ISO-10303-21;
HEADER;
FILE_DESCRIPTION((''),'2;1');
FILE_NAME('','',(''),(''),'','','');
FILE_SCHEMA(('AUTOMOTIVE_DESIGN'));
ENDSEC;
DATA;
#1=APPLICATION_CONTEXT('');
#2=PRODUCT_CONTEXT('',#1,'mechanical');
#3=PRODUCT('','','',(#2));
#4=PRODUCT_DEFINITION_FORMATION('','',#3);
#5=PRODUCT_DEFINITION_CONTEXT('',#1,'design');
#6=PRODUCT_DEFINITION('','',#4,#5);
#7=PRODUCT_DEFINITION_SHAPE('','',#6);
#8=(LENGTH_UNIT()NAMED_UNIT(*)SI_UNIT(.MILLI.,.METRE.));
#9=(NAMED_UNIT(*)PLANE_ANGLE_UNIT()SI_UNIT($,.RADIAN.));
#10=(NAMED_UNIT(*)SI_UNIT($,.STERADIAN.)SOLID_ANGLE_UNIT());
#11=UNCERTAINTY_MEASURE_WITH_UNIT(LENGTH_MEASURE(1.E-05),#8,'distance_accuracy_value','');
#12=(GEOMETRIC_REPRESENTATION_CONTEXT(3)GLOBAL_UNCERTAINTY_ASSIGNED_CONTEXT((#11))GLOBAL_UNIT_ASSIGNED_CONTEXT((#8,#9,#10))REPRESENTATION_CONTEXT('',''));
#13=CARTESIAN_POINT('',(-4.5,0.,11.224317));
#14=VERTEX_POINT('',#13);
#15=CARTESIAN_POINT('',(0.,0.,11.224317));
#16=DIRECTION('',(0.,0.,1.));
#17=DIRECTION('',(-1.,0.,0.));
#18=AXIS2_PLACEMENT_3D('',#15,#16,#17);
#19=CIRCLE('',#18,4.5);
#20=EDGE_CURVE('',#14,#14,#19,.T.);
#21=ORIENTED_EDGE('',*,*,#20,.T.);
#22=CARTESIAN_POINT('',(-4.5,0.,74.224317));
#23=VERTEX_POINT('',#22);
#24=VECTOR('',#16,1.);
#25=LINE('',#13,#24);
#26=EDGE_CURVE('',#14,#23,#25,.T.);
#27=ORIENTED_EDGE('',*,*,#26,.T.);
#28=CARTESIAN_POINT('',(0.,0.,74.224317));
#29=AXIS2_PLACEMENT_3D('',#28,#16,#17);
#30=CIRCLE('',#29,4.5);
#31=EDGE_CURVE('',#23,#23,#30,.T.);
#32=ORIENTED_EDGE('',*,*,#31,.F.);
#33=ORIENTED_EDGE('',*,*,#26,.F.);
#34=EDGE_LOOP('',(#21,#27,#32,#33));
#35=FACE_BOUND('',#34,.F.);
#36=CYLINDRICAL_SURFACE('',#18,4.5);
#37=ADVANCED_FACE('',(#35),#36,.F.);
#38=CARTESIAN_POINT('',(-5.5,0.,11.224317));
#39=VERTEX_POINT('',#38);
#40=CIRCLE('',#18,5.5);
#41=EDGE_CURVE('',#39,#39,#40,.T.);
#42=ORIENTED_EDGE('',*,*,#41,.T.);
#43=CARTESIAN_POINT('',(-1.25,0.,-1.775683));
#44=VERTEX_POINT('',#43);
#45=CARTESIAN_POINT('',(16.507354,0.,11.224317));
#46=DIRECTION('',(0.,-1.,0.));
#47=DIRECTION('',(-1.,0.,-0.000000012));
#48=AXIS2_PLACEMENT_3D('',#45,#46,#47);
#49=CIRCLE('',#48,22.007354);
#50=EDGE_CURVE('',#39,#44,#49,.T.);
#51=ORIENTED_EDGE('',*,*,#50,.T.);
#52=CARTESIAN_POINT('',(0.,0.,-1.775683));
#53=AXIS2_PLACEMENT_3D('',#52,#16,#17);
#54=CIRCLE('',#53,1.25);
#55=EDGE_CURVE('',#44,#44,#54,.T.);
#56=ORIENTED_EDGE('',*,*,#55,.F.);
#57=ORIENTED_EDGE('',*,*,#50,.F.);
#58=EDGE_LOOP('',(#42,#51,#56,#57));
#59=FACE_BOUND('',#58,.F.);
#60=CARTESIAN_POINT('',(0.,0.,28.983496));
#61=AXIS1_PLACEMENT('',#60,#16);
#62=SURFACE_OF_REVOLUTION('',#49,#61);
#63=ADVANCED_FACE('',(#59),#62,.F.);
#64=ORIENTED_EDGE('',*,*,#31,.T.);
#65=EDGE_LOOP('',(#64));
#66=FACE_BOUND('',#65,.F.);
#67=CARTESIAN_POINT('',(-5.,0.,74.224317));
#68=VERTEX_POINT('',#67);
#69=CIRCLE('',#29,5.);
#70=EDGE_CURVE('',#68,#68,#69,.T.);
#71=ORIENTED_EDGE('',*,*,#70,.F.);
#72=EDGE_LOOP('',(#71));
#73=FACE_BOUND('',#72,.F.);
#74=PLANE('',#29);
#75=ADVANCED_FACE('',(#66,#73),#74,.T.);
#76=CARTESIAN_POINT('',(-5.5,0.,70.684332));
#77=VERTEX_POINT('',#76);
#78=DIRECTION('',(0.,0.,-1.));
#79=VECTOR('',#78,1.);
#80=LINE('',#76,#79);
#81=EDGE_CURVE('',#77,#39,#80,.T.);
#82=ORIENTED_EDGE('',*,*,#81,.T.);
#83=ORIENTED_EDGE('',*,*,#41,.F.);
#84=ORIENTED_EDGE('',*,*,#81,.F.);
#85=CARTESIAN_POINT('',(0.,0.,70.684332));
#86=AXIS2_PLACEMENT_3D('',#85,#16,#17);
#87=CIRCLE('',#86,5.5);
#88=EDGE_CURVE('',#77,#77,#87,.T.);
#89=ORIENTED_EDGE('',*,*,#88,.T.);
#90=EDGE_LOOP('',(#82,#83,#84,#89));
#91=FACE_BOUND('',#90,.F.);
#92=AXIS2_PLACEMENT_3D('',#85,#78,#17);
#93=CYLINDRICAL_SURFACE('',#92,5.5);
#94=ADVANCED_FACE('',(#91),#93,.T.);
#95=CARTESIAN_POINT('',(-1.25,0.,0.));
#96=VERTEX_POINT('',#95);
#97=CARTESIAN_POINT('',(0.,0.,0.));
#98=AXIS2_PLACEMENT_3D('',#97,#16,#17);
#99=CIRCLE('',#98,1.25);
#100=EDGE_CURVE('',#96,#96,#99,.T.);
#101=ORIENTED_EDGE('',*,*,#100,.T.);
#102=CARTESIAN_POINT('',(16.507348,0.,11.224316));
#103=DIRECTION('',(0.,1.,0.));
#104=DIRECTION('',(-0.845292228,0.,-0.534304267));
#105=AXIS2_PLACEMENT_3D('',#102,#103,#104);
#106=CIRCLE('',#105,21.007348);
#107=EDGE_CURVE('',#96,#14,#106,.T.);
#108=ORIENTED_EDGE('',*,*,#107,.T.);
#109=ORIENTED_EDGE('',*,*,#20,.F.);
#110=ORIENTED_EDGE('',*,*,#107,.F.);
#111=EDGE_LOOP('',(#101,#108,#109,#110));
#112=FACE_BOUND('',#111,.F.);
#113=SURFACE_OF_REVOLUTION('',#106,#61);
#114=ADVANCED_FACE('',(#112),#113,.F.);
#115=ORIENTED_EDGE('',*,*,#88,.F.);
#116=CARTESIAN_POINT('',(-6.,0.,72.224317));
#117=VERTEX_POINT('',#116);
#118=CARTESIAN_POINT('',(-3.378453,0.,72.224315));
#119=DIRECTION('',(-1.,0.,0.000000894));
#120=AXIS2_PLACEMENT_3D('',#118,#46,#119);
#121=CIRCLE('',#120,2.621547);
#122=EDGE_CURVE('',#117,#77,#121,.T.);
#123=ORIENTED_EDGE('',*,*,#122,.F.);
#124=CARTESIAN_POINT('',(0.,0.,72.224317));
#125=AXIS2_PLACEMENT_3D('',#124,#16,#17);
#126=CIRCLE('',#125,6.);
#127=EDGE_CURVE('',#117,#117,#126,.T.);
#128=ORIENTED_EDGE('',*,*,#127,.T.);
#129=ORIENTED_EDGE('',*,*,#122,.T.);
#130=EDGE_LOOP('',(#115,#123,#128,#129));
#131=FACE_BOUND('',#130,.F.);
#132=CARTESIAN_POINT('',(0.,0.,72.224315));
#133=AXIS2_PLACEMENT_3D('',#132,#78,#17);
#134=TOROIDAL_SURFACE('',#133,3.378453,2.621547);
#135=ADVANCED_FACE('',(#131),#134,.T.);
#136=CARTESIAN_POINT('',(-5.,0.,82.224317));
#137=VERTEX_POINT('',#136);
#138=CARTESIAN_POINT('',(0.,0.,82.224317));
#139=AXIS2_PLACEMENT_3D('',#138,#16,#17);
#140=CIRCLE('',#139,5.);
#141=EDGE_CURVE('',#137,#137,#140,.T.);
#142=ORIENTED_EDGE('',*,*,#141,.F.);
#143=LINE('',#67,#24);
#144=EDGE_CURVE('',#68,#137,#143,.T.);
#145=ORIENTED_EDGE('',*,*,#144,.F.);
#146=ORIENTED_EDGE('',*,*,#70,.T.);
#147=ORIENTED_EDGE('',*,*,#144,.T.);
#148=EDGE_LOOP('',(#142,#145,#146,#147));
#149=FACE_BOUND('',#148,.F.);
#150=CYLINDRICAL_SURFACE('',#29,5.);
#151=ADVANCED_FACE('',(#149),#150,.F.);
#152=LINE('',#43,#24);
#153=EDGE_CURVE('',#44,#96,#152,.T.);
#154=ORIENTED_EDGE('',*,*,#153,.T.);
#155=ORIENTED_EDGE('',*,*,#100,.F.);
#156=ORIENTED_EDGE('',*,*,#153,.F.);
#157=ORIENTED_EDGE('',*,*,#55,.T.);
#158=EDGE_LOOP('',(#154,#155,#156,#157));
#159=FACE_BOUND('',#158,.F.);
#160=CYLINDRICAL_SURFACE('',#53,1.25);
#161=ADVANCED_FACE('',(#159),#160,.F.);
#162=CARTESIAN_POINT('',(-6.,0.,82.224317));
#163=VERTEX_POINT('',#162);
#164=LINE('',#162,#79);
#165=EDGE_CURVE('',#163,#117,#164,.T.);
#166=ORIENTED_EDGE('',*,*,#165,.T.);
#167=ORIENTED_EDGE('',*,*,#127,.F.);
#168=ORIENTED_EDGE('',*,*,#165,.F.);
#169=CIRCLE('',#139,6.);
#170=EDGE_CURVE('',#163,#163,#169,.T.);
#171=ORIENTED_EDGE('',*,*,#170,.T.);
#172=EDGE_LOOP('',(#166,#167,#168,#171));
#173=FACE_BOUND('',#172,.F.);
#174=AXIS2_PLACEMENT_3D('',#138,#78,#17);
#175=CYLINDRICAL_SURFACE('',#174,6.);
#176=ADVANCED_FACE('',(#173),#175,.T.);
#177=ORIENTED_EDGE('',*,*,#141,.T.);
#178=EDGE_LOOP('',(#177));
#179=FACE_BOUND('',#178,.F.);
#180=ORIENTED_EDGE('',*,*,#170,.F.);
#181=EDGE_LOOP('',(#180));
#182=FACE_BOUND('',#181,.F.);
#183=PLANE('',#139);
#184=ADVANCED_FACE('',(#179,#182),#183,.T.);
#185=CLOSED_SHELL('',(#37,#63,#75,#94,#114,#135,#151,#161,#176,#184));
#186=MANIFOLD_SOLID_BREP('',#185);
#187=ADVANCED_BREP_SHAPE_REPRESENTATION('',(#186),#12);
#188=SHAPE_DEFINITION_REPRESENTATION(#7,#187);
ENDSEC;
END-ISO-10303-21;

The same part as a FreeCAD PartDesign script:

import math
import FreeCAD as App
import Part
import Sketcher

doc = App.newDocument("Part")
params = doc.addObject("Spreadsheet::Sheet", "Params")
for row, (alias, value) in enumerate([
    ("sketch1_width", "1 mm"),
    ("sketch1_height", "63 mm"),
    ("sketch1_height2", "8 mm"),
    ("sketch1_height3", "10 mm"),
    ("sketch1_width2", "0.5 mm"),
    ("revolution_angle", "360 deg"),
], start=1):
    params.set(f"A{row}", alias)
    params.set(f"B{row}", "=" + value)
    params.setAlias(f"B{row}", alias)

body = doc.addObject("PartDesign::Body", "Body")

# Sketch on XZ plane
sketch1 = doc.addObject("Sketcher::SketchObject", "Sketch")
body.addObject(sketch1)
sketch1.AttachmentSupport = (doc.XZ_Plane, [""])
sketch1.MapMode = "FlatFace"
sketch1.addGeometry(Part.LineSegment(App.Vector(-4.5, 11.2, 0), App.Vector(-4.5, 74.2, 0)), False)
sketch1.addGeometry(Part.LineSegment(App.Vector(-4.5, 74.2, 0), App.Vector(-5, 74.2, 0)), False)
sketch1.addGeometry(Part.LineSegment(App.Vector(-5, 74.2, 0), App.Vector(-5, 82.2, 0)), False)
sketch1.addGeometry(Part.LineSegment(App.Vector(-5, 82.2, 0), App.Vector(-6, 82.2, 0)), False)
sketch1.addGeometry(Part.LineSegment(App.Vector(-6, 82.2, 0), App.Vector(-6, 72.2, 0)), False)
sketch1.addGeometry(Part.ArcOfCircle(Part.Circle(App.Vector(-3.4, 72.2, 0), App.Vector(0, 0, 1), 2.6), math.radians(180), math.radians(216)), False)
sketch1.addGeometry(Part.LineSegment(App.Vector(-5.5, 70.7, 0), App.Vector(-5.5, 11.2, 0)), False)
sketch1.addGeometry(Part.ArcOfCircle(Part.Circle(App.Vector(16.5, 11.2, 0), App.Vector(0, 0, 1), 22), math.radians(-180), math.radians(-144)), False)
sketch1.addGeometry(Part.LineSegment(App.Vector(-1.2, -1.8, 0), App.Vector(-1.2, 0, 0)), False)
sketch1.addGeometry(Part.ArcOfCircle(Part.Circle(App.Vector(16.5, 11.2, 0), App.Vector(0, 0, 1), 21), math.radians(180), math.radians(212)), False)
sketch1.addConstraint(Sketcher.Constraint("Coincident", 0, 2, 1, 1))
sketch1.addConstraint(Sketcher.Constraint("Coincident", 1, 2, 2, 1))
sketch1.addConstraint(Sketcher.Constraint("Coincident", 2, 2, 3, 1))
sketch1.addConstraint(Sketcher.Constraint("Coincident", 3, 2, 4, 1))
sketch1.addConstraint(Sketcher.Constraint("Tangent", 4, 2, 5, 1))
sketch1.addConstraint(Sketcher.Constraint("Coincident", 5, 2, 6, 1))
sketch1.addConstraint(Sketcher.Constraint("Tangent", 6, 2, 7, 1))
sketch1.addConstraint(Sketcher.Constraint("Coincident", 7, 2, 8, 1))
sketch1.addConstraint(Sketcher.Constraint("Coincident", 8, 2, 9, 2))
sketch1.addConstraint(Sketcher.Constraint("Tangent", 9, 1, 0, 1))
sketch1.addConstraint(Sketcher.Constraint("Vertical", 0))
sketch1.addConstraint(Sketcher.Constraint("Horizontal", 1))
sketch1.addConstraint(Sketcher.Constraint("Vertical", 2))
sketch1.addConstraint(Sketcher.Constraint("Horizontal", 3))
sketch1.addConstraint(Sketcher.Constraint("Vertical", 4))
sketch1.addConstraint(Sketcher.Constraint("Vertical", 6))
sketch1.addConstraint(Sketcher.Constraint("Vertical", 8))
sketch1.addConstraint(Sketcher.Constraint("Coincident", 9, 3, 7, 3))
sketch1.addConstraint(Sketcher.Constraint("PointOnObject", 8, 2, -1))
sketch1.addConstraint(Sketcher.Constraint("DistanceX", 3, 2, 3, 1, 1.0))
sketch1.addConstraint(Sketcher.Constraint("DistanceY", 0, 1, 0, 2, 63.0))
sketch1.addConstraint(Sketcher.Constraint("DistanceY", 2, 1, 2, 2, 8.0))
sketch1.addConstraint(Sketcher.Constraint("DistanceY", 4, 2, 4, 1, 10.0))
sketch1.addConstraint(Sketcher.Constraint("DistanceX", 1, 2, 1, 1, 0.5))
sketch1.addConstraint(Sketcher.Constraint("DistanceX", 1, 2, -1, 1, 5.0))
sketch1.addConstraint(Sketcher.Constraint("DistanceX", 5, 2, 0, 2, 1.0))
sketch1.addConstraint(Sketcher.Constraint("DistanceY", 7, 2, 6, 2, 13.0))
sketch1.addConstraint(Sketcher.Constraint("DistanceX", 7, 2, -1, 1, 1.25))
sketch1.addConstraint(Sketcher.Constraint("Radius", 5, 2.621547))
sketch1.setExpression("Constraints[19]", "Params.sketch1_width")
sketch1.setExpression("Constraints[20]", "Params.sketch1_height")
sketch1.setExpression("Constraints[21]", "Params.sketch1_height2")
sketch1.setExpression("Constraints[22]", "Params.sketch1_height3")
sketch1.setExpression("Constraints[23]", "Params.sketch1_width2")
revolution = doc.addObject("PartDesign::Revolution", "Revolution")
body.addObject(revolution)
revolution.Profile = sketch1
revolution.ReferenceAxis = (sketch1, ["V_Axis"])
revolution.setExpression("Angle", "Params.revolution_angle")

doc.recompute()
